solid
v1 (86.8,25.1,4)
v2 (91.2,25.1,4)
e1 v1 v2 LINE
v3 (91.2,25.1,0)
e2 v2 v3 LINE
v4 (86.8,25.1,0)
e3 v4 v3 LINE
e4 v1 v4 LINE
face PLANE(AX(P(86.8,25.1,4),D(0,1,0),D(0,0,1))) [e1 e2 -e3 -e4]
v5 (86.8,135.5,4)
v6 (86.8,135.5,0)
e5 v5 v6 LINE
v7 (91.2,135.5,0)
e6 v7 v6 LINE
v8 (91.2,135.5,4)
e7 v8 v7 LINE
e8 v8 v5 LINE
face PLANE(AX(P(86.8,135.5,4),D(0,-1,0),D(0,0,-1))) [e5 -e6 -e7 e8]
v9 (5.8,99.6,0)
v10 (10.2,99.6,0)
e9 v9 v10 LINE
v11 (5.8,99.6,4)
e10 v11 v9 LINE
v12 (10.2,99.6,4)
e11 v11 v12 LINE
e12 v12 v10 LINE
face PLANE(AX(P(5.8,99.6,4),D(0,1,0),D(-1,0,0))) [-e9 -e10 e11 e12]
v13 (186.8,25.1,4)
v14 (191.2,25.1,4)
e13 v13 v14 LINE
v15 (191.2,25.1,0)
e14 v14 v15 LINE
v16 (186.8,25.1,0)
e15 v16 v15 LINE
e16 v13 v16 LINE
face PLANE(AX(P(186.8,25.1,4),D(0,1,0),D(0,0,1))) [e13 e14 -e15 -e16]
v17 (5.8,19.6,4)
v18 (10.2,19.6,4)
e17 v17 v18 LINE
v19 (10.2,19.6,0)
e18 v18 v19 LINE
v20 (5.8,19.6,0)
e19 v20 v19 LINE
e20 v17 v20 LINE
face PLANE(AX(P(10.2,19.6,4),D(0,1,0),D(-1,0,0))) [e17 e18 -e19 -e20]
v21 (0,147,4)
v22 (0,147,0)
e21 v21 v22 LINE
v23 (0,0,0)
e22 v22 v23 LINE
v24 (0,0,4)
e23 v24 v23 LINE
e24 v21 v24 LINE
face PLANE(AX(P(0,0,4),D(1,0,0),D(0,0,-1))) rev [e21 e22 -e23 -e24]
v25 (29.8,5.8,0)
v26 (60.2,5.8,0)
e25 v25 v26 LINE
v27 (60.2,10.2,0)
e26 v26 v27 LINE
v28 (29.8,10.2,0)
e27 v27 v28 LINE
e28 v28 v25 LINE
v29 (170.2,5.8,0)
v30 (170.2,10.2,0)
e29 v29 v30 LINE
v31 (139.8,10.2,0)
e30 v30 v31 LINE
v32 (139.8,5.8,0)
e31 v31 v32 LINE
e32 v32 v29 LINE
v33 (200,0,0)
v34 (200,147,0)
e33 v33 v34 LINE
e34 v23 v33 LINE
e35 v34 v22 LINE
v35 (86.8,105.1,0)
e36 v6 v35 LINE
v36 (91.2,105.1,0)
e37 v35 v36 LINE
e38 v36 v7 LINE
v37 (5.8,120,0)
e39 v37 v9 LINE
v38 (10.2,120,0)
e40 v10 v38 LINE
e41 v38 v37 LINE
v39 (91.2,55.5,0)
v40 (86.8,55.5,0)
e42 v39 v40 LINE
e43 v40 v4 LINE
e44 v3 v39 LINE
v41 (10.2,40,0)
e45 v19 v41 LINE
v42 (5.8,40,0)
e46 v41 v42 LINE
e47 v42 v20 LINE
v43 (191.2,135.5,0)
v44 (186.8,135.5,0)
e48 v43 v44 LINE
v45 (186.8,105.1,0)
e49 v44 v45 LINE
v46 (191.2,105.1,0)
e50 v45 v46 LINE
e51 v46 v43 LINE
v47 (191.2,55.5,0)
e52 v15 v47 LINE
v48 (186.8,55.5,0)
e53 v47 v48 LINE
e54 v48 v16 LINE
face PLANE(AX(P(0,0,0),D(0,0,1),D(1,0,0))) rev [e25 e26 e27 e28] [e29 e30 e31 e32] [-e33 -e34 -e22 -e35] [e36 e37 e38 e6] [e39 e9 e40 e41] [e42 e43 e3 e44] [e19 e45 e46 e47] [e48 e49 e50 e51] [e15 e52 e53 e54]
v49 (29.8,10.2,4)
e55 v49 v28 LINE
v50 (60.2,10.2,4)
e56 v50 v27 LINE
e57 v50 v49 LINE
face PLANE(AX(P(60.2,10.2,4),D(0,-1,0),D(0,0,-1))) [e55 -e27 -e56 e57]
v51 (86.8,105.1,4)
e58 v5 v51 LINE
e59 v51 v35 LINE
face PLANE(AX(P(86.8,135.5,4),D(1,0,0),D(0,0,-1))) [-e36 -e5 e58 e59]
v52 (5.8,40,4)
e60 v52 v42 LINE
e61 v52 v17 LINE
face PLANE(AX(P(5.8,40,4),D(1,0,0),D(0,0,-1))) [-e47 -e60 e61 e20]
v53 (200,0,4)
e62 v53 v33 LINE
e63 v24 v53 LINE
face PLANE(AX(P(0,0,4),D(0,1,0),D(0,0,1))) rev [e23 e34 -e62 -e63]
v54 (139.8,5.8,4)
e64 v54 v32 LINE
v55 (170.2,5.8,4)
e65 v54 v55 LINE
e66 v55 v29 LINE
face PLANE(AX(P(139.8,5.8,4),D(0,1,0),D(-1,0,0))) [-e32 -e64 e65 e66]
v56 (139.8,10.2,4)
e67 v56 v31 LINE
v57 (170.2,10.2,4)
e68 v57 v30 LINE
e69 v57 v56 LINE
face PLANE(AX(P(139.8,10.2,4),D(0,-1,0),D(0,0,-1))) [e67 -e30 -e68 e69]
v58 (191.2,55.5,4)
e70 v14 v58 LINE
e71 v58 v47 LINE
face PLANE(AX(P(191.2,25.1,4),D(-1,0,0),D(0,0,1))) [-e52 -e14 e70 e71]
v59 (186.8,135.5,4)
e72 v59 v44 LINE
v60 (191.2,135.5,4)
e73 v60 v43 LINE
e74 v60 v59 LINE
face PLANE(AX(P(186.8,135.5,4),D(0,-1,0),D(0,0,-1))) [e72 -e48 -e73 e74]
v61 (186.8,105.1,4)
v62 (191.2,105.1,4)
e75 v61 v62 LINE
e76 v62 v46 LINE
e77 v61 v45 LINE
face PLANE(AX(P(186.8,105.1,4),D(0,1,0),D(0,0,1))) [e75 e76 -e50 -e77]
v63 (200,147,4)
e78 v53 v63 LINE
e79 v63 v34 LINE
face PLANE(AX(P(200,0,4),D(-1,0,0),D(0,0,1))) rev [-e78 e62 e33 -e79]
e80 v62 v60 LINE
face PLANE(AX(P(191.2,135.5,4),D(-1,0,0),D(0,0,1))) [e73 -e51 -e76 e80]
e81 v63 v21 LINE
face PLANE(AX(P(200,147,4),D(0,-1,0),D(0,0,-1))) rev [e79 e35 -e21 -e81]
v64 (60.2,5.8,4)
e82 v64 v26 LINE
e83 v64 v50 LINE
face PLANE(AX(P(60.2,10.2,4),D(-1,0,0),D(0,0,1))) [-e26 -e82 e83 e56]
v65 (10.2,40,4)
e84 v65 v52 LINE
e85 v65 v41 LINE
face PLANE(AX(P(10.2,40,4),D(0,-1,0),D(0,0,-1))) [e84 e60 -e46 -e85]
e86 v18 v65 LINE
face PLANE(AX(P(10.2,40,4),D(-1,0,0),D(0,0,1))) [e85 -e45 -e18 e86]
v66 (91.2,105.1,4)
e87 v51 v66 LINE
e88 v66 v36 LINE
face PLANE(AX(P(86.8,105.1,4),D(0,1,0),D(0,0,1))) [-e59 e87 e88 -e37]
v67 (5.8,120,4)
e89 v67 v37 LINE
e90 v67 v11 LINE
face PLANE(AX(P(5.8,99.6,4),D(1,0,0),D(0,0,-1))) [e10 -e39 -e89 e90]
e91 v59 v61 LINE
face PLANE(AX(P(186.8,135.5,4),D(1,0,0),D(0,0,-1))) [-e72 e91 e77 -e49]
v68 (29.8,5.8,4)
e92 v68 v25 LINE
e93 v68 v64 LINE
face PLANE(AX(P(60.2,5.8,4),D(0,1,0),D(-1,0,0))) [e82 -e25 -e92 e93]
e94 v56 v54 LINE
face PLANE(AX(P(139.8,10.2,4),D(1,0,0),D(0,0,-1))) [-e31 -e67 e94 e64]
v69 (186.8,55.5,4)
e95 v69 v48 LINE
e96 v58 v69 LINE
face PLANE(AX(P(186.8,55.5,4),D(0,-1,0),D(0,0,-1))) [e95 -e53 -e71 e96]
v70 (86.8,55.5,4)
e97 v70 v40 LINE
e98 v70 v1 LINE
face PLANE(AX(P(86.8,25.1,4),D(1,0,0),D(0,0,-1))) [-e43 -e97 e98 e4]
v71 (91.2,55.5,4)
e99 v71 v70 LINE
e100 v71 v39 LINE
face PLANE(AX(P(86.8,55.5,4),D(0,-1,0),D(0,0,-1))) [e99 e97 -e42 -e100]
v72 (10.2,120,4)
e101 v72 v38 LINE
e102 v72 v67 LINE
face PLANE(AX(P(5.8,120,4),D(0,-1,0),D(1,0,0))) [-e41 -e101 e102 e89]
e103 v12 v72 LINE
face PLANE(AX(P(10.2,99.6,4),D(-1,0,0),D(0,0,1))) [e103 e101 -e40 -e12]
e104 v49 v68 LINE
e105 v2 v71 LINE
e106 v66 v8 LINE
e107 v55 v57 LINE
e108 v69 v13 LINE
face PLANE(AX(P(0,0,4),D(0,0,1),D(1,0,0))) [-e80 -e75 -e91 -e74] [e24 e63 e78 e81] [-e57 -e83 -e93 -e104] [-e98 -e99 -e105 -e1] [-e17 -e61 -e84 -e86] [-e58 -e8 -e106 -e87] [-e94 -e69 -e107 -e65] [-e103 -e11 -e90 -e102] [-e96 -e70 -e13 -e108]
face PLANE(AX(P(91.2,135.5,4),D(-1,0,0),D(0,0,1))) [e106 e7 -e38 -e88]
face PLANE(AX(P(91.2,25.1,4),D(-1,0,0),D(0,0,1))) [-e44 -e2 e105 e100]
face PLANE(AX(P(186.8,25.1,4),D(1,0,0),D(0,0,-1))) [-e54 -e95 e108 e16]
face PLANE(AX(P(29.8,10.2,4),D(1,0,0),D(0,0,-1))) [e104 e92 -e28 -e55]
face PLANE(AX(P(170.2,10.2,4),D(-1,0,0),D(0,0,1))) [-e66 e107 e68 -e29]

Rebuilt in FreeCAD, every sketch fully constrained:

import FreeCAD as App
import Part
import Sketcher

V = App.Vector

doc = App.newDocument("Part")
body = doc.addObject("PartDesign::Body", "Body")

# Sketch on XY plane
sketch1 = doc.addObject("Sketcher::SketchObject", "Sketch")
body.addObject(sketch1)
sketch1.AttachmentSupport = (doc.XY_Plane, [""])
sketch1.MapMode = "FlatFace"
sketch1.addGeometry(Part.LineSegment(V(0, 147, 0), V(0, 0, 0)), False)
sketch1.addGeometry(Part.LineSegment(V(0, 0, 0), V(200, 0, 0)), False)
sketch1.addGeometry(Part.LineSegment(V(200, 0, 0), V(200, 147, 0)), False)
sketch1.addGeometry(Part.LineSegment(V(200, 147, 0), V(0, 147, 0)), False)
sketch1.addGeometry(Part.LineSegment(V(60.2, 5.8, 0), V(29.8, 5.8, 0)), False)
sketch1.addGeometry(Part.LineSegment(V(29.8, 5.8, 0), V(29.8, 10.2, 0)), False)
sketch1.addGeometry(Part.LineSegment(V(29.8, 10.2, 0), V(60.2, 10.2, 0)), False)
sketch1.addGeometry(Part.LineSegment(V(60.2, 10.2, 0), V(60.2, 5.8, 0)), False)
sketch1.addGeometry(Part.LineSegment(V(10.2, 19.6, 0), V(5.8, 19.6, 0)), False)
sketch1.addGeometry(Part.LineSegment(V(5.8, 19.6, 0), V(5.8, 40, 0)), False)
sketch1.addGeometry(Part.LineSegment(V(5.8, 40, 0), V(10.2, 40, 0)), False)
sketch1.addGeometry(Part.LineSegment(V(10.2, 40, 0), V(10.2, 19.6, 0)), False)
sketch1.addGeometry(Part.LineSegment(V(91.2, 25.1, 0), V(86.8, 25.1, 0)), False)
sketch1.addGeometry(Part.LineSegment(V(86.8, 25.1, 0), V(86.8, 55.5, 0)), False)
sketch1.addGeometry(Part.LineSegment(V(86.8, 55.5, 0), V(91.2, 55.5, 0)), False)
sketch1.addGeometry(Part.LineSegment(V(91.2, 55.5, 0), V(91.2, 25.1, 0)), False)
sketch1.addGeometry(Part.LineSegment(V(170.2, 5.8, 0), V(139.8, 5.8, 0)), False)
sketch1.addGeometry(Part.LineSegment(V(139.8, 5.8, 0), V(139.8, 10.2, 0)), False)
sketch1.addGeometry(Part.LineSegment(V(139.8, 10.2, 0), V(170.2, 10.2, 0)), False)
sketch1.addGeometry(Part.LineSegment(V(170.2, 10.2, 0), V(170.2, 5.8, 0)), False)
sketch1.addGeometry(Part.LineSegment(V(191.2, 25.1, 0), V(186.8, 25.1, 0)), False)
sketch1.addGeometry(Part.LineSegment(V(186.8, 25.1, 0), V(186.8, 55.5, 0)), False)
sketch1.addGeometry(Part.LineSegment(V(186.8, 55.5, 0), V(191.2, 55.5, 0)), False)
sketch1.addGeometry(Part.LineSegment(V(191.2, 55.5, 0), V(191.2, 25.1, 0)), False)
sketch1.addGeometry(Part.LineSegment(V(10.2, 99.6, 0), V(5.8, 99.6, 0)), False)
sketch1.addGeometry(Part.LineSegment(V(5.8, 99.6, 0), V(5.8, 120, 0)), False)
sketch1.addGeometry(Part.LineSegment(V(5.8, 120, 0), V(10.2, 120, 0)), False)
sketch1.addGeometry(Part.LineSegment(V(10.2, 120, 0), V(10.2, 99.6, 0)), False)
sketch1.addGeometry(Part.LineSegment(V(91.2, 105.1, 0), V(86.8, 105.1, 0)), False)
sketch1.addGeometry(Part.LineSegment(V(86.8, 105.1, 0), V(86.8, 135.5, 0)), False)
sketch1.addGeometry(Part.LineSegment(V(86.8, 135.5, 0), V(91.2, 135.5, 0)), False)
sketch1.addGeometry(Part.LineSegment(V(91.2, 135.5, 0), V(91.2, 105.1, 0)), False)
sketch1.addGeometry(Part.LineSegment(V(191.2, 105.1, 0), V(186.8, 105.1, 0)), False)
sketch1.addGeometry(Part.LineSegment(V(186.8, 105.1, 0), V(186.8, 135.5, 0)), False)
sketch1.addGeometry(Part.LineSegment(V(186.8, 135.5, 0), V(191.2, 135.5, 0)), False)
sketch1.addGeometry(Part.LineSegment(V(191.2, 135.5, 0), V(191.2, 105.1, 0)), False)
sketch1.addConstraint(Sketcher.Constraint("Coincident", 0, 2, 1, 1))
sketch1.addConstraint(Sketcher.Constraint("Coincident", 1, 2, 2, 1))
sketch1.addConstraint(Sketcher.Constraint("Coincident", 2, 2, 3, 1))
sketch1.addConstraint(Sketcher.Constraint("Coincident", 3, 2, 0, 1))
sketch1.addConstraint(Sketcher.Constraint("Coincident", 4, 2, 5, 1))
sketch1.addConstraint(Sketcher.Constraint("Coincident", 5, 2, 6, 1))
sketch1.addConstraint(Sketcher.Constraint("Coincident", 6, 2, 7, 1))
sketch1.addConstraint(Sketcher.Constraint("Coincident", 7, 2, 4, 1))
sketch1.addConstraint(Sketcher.Constraint("Coincident", 8, 2, 9, 1))
sketch1.addConstraint(Sketcher.Constraint("Coincident", 9, 2, 10, 1))
sketch1.addConstraint(Sketcher.Constraint("Coincident", 10, 2, 11, 1))
sketch1.addConstraint(Sketcher.Constraint("Coincident", 11, 2, 8, 1))
sketch1.addConstraint(Sketcher.Constraint("Coincident", 12, 2, 13, 1))
sketch1.addConstraint(Sketcher.Constraint("Coincident", 13, 2, 14, 1))
sketch1.addConstraint(Sketcher.Constraint("Coincident", 14, 2, 15, 1))
sketch1.addConstraint(Sketcher.Constraint("Coincident", 15, 2, 12, 1))
sketch1.addConstraint(Sketcher.Constraint("Coincident", 16, 2, 17, 1))
sketch1.addConstraint(Sketcher.Constraint("Coincident", 17, 2, 18, 1))
sketch1.addConstraint(Sketcher.Constraint("Coincident", 18, 2, 19, 1))
sketch1.addConstraint(Sketcher.Constraint("Coincident", 19, 2, 16, 1))
sketch1.addConstraint(Sketcher.Constraint("Coincident", 20, 2, 21, 1))
sketch1.addConstraint(Sketcher.Constraint("Coincident", 21, 2, 22, 1))
sketch1.addConstraint(Sketcher.Constraint("Coincident", 22, 2, 23, 1))
sketch1.addConstraint(Sketcher.Constraint("Coincident", 23, 2, 20, 1))
sketch1.addConstraint(Sketcher.Constraint("Coincident", 24, 2, 25, 1))
sketch1.addConstraint(Sketcher.Constraint("Coincident", 25, 2, 26, 1))
sketch1.addConstraint(Sketcher.Constraint("Coincident", 26, 2, 27, 1))
sketch1.addConstraint(Sketcher.Constraint("Coincident", 27, 2, 24, 1))
sketch1.addConstraint(Sketcher.Constraint("Coincident", 28, 2, 29, 1))
sketch1.addConstraint(Sketcher.Constraint("Coincident", 29, 2, 30, 1))
sketch1.addConstraint(Sketcher.Constraint("Coincident", 30, 2, 31, 1))
sketch1.addConstraint(Sketcher.Constraint("Coincident", 31, 2, 28, 1))
sketch1.addConstraint(Sketcher.Constraint("Coincident", 32, 2, 33, 1))
sketch1.addConstraint(Sketcher.Constraint("Coincident", 33, 2, 34, 1))
sketch1.addConstraint(Sketcher.Constraint("Coincident", 34, 2, 35, 1))
sketch1.addConstraint(Sketcher.Constraint("Coincident", 35, 2, 32, 1))
sketch1.addConstraint(Sketcher.Constraint("Vertical", 0))
sketch1.addConstraint(Sketcher.Constraint("Horizontal", 1))
sketch1.addConstraint(Sketcher.Constraint("Vertical", 2))
sketch1.addConstraint(Sketcher.Constraint("Horizontal", 3))
sketch1.addConstraint(Sketcher.Constraint("Horizontal", 4))
sketch1.addConstraint(Sketcher.Constraint("Vertical", 5))
sketch1.addConstraint(Sketcher.Constraint("Horizontal", 6))
sketch1.addConstraint(Sketcher.Constraint("Vertical", 7))
sketch1.addConstraint(Sketcher.Constraint("Horizontal", 8))
sketch1.addConstraint(Sketcher.Constraint("Vertical", 9))
sketch1.addConstraint(Sketcher.Constraint("Horizontal", 10))
sketch1.addConstraint(Sketcher.Constraint("Vertical", 11))
sketch1.addConstraint(Sketcher.Constraint("Horizontal", 12))
sketch1.addConstraint(Sketcher.Constraint("Vertical", 13))
sketch1.addConstraint(Sketcher.Constraint("Horizontal", 14))
sketch1.addConstraint(Sketcher.Constraint("Vertical", 15))
sketch1.addConstraint(Sketcher.Constraint("Horizontal", 16))
sketch1.addConstraint(Sketcher.Constraint("Vertical", 17))
sketch1.addConstraint(Sketcher.Constraint("Horizontal", 18))
sketch1.addConstraint(Sketcher.Constraint("Vertical", 19))
sketch1.addConstraint(Sketcher.Constraint("Horizontal", 20))
sketch1.addConstraint(Sketcher.Constraint("Vertical", 21))
sketch1.addConstraint(Sketcher.Constraint("Horizontal", 22))
sketch1.addConstraint(Sketcher.Constraint("Vertical", 23))
sketch1.addConstraint(Sketcher.Constraint("Horizontal", 24))
sketch1.addConstraint(Sketcher.Constraint("Vertical", 25))
sketch1.addConstraint(Sketcher.Constraint("Horizontal", 26))
sketch1.addConstraint(Sketcher.Constraint("Vertical", 27))
sketch1.addConstraint(Sketcher.Constraint("Horizontal", 28))
sketch1.addConstraint(Sketcher.Constraint("Vertical", 29))
sketch1.addConstraint(Sketcher.Constraint("Horizontal", 30))
sketch1.addConstraint(Sketcher.Constraint("Vertical", 31))
sketch1.addConstraint(Sketcher.Constraint("Horizontal", 32))
sketch1.addConstraint(Sketcher.Constraint("Vertical", 33))
sketch1.addConstraint(Sketcher.Constraint("Horizontal", 34))
sketch1.addConstraint(Sketcher.Constraint("Vertical", 35))
sketch1.addConstraint(Sketcher.Constraint("Coincident", 0, 2, -1, 1))
sketch1.addConstraint(Sketcher.Constraint("Horizontal", 7, 2, 16, 2))
sketch1.addConstraint(Sketcher.Constraint("Horizontal", 6, 2, 17, 2))
sketch1.addConstraint(Sketcher.Constraint("Horizontal", 15, 2, 20, 2))
sketch1.addConstraint(Sketcher.Constraint("Horizontal", 14, 2, 21, 2))
sketch1.addConstraint(Sketcher.Constraint("Horizontal", 31, 2, 32, 2))
sketch1.addConstraint(Sketcher.Constraint("Horizontal", 30, 2, 33, 2))
sketch1.addConstraint(Sketcher.Constraint("Vertical", 9, 2, 24, 2))
sketch1.addConstraint(Sketcher.Constraint("Vertical", 11, 2, 26, 2))
sketch1.addConstraint(Sketcher.Constraint("Vertical", 13, 2, 28, 2))
sketch1.addConstraint(Sketcher.Constraint("Vertical", 15, 2, 30, 2))
sketch1.addConstraint(Sketcher.Constraint("Vertical", 21, 2, 32, 2))
sketch1.addConstraint(Sketcher.Constraint("Vertical", 23, 2, 34, 2))
sketch1.addConstraint(Sketcher.Constraint("Equal", 10, 12))
sketch1.addConstraint(Sketcher.Constraint("Equal", 6, 16))
sketch1.addConstraint(Sketcher.Constraint("Equal", 14, 20))
sketch1.addConstraint(Sketcher.Constraint("Equal", 34, 5))
sketch1.addConstraint(Sketcher.Constraint("Equal", 18, 13))
sketch1.addConstraint(Sketcher.Constraint("Equal", 11, 25))
sketch1.addConstraint(Sketcher.Constraint("Equal", 23, 29))
sketch1.addConstraint(Sketcher.Constraint("DistanceX", 1, 1, 1, 2, 200.0))
sketch1.addConstraint(Sketcher.Constraint("DistanceY", 0, 2, 0, 1, 147.0))
sketch1.addConstraint(Sketcher.Constraint("DistanceX", 4, 2, 4, 1, 30.4))
sketch1.addConstraint(Sketcher.Constraint("DistanceX", 8, 2, 8, 1, 4.4))
sketch1.addConstraint(Sketcher.Constraint("DistanceY", 9, 1, 9, 2, 20.4))
sketch1.addConstraint(Sketcher.Constraint("DistanceY", -1, 1, 9, 2, 40.0))
sketch1.addConstraint(Sketcher.Constraint("DistanceY", -1, 1, 25, 2, 120.0))
sketch1.addConstraint(Sketcher.Constraint("DistanceX", 8, 2, 5, 2, 24.0))
sketch1.addConstraint(Sketcher.Constraint("DistanceX", 5, 2, 12, 2, 57.0))
sketch1.addConstraint(Sketcher.Constraint("DistanceX", 12, 2, 16, 2, 53.0))
sketch1.addConstraint(Sketcher.Constraint("DistanceX", 17, 2, 20, 2, 47.0))
sketch1.addConstraint(Sketcher.Constraint("DistanceY", 12, 2, 28, 2, 80.0))
sketch1.addConstraint(Sketcher.Constraint("DistanceX", -1, 1, 4, 2, 29.8))
sketch1.addConstraint(Sketcher.Constraint("DistanceY", -1, 1, 4, 2, 5.8))
sketch1.addConstraint(Sketcher.Constraint("DistanceY", -1, 1, 12, 2, 25.1))
pad1 = doc.addObject("PartDesign::Pad", "Pad")
body.addObject(pad1)
pad1.Profile = sketch1
pad1.Length = 4

doc.recompute()
